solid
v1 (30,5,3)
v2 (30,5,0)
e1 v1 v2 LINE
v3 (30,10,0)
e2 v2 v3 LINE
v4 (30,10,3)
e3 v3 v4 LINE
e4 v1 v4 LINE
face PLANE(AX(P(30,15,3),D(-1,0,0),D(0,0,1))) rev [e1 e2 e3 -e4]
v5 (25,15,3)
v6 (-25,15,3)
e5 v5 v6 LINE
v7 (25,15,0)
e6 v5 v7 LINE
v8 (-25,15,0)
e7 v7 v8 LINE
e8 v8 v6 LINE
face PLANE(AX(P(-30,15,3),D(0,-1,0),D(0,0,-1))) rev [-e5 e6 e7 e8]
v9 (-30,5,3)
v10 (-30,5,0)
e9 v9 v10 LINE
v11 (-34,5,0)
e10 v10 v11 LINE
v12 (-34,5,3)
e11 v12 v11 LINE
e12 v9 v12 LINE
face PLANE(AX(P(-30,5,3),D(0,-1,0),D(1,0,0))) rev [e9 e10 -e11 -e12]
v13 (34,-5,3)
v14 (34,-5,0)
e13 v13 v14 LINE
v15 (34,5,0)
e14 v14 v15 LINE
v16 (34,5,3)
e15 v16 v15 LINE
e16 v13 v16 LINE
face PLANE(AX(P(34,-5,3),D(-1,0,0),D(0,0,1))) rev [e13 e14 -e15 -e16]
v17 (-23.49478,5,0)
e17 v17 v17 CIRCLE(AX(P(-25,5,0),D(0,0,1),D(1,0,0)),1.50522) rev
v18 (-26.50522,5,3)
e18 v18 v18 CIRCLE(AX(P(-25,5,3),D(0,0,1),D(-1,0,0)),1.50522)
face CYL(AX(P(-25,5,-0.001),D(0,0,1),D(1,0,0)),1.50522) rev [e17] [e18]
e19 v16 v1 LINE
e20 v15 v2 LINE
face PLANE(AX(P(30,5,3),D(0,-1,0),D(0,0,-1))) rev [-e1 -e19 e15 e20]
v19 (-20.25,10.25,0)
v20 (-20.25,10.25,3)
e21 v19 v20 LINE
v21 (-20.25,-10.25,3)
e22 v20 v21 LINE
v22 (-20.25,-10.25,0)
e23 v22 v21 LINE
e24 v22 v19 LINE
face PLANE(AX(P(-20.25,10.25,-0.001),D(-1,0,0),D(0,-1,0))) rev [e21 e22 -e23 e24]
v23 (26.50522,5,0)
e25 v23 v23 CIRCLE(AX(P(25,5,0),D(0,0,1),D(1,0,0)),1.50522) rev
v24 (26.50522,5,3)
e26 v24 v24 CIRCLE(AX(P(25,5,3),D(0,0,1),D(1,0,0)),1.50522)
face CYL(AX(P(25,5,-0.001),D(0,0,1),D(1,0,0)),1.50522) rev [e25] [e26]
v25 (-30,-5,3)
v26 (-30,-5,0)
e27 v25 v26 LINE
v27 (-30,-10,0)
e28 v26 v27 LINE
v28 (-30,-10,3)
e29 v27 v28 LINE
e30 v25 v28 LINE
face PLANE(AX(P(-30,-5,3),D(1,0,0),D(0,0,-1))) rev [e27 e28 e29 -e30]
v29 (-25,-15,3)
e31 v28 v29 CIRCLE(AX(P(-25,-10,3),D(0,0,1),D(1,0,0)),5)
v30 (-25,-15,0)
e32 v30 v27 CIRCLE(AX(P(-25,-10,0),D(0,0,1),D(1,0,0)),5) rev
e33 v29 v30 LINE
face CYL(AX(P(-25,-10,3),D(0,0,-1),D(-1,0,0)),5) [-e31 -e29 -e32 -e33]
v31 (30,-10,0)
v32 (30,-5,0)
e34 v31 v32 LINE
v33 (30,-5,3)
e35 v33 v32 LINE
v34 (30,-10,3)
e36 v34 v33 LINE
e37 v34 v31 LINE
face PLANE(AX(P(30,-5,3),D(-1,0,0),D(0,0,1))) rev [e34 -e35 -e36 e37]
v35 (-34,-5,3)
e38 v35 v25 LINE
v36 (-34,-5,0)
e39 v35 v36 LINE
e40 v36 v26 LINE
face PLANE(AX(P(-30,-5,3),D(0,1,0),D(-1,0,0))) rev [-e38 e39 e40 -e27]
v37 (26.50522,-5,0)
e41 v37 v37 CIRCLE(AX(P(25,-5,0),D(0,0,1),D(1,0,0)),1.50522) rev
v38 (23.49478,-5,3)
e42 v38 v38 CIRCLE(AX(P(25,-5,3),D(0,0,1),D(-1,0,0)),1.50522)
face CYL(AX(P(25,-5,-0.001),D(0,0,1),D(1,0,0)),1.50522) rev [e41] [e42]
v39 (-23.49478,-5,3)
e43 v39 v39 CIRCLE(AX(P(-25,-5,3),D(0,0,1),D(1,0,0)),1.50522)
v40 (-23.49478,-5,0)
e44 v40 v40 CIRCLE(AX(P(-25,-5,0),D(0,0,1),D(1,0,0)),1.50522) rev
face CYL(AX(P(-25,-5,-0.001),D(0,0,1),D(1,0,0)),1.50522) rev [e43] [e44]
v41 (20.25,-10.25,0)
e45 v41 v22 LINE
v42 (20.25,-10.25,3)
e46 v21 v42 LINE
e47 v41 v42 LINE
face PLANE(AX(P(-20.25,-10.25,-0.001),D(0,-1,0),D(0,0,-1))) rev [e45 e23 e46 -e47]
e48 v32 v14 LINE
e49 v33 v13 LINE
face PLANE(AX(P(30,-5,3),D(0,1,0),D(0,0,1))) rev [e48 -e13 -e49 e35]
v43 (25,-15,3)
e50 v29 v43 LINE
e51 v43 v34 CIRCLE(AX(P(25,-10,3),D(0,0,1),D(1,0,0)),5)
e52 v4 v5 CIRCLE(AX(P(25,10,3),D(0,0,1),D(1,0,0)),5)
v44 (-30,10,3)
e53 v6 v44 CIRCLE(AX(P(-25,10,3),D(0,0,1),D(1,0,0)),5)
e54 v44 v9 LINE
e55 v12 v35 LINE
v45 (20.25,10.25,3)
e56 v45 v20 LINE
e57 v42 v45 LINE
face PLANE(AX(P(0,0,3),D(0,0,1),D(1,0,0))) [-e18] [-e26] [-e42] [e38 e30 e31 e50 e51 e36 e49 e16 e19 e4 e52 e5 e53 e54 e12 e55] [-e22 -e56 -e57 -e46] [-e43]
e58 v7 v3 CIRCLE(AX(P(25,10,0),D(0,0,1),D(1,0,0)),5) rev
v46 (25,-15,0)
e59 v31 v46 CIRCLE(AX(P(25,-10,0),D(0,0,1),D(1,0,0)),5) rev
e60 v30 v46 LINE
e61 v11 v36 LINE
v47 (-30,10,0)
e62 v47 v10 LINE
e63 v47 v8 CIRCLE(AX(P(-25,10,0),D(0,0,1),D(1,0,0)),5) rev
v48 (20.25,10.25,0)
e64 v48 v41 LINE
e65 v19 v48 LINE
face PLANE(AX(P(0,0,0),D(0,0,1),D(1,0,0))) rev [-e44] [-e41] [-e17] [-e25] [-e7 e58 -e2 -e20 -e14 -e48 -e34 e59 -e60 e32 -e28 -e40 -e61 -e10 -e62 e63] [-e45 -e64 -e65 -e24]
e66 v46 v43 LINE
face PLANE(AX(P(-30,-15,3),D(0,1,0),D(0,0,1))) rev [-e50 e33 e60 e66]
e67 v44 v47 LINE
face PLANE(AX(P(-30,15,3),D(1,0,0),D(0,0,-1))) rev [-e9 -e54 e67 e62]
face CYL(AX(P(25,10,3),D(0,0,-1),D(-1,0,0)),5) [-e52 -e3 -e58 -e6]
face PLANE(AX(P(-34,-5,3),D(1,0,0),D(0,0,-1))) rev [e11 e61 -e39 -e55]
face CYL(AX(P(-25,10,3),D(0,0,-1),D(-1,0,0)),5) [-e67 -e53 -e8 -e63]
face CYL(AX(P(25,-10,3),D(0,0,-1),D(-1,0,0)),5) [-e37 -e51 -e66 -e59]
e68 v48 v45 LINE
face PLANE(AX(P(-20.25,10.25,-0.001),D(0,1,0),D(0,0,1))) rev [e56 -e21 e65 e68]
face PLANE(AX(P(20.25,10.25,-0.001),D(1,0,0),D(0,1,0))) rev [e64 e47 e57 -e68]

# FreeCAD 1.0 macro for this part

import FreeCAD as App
import Part
import Sketcher

V = App.Vector


def edges_at(feature, points):
    """Names of the edges that pass closest to the given points."""
    edges = feature.Shape.Edges
    near = lambda p: min(range(len(edges)), key=lambda i: edges[i].distToShape(Part.Vertex(*p))[0])
    return sorted({f"Edge{near(p) + 1}" for p in points})


def add_polygon(sketch, points):
    """Adds a closed chain of lines whose ends are joined by coincident constraints."""
    first, n = sketch.GeometryCount, len(points)
    for a, b in zip(points, points[1:] + points[:1]):
        sketch.addGeometry(Part.LineSegment(App.Vector(*a, 0), App.Vector(*b, 0)), False)
    for i in range(n):
        sketch.addConstraint(Sketcher.Constraint("Coincident", first + i, 2, first + (i + 1) % n, 1))

doc = App.newDocument("Part")
body = doc.addObject("PartDesign::Body", "Body")

sketch1 = body.newObject("Sketcher::SketchObject", "Sketch")
sketch1.AttachmentSupport = (doc.getObject("XY_Plane"), [""])
sketch1.MapMode = "FlatFace"
add_polygon(sketch1, [(-30, -5), (-30, -15), (30, -15), (30, -5), (34, -5), (34, 5), (30, 5), (30, 15), (-30, 15), (-30, 5), (-34, 5), (-34, -5)])
sketch1.addConstraint([
    Sketcher.Constraint("Vertical", 0),
    Sketcher.Constraint("Horizontal", 1),
    Sketcher.Constraint("Vertical", 2),
    Sketcher.Constraint("Horizontal", 3),
    Sketcher.Constraint("Vertical", 4),
    Sketcher.Constraint("Horizontal", 5),
    Sketcher.Constraint("Vertical", 6),
    Sketcher.Constraint("Horizontal", 7),
    Sketcher.Constraint("Vertical", 8),
    Sketcher.Constraint("Horizontal", 9),
    Sketcher.Constraint("Vertical", 10),
    Sketcher.Constraint("Horizontal", 11),
    Sketcher.Constraint("Symmetric", 0, 2, 6, 2, -1, 1),
    Sketcher.Constraint("Symmetric", 2, 2, 8, 2, -1, 1),
    Sketcher.Constraint("Symmetric", 4, 2, 10, 2, -1, 1),
    Sketcher.Constraint("Symmetric", 5, 2, 8, 2, -2),
    Sketcher.Constraint("Equal", 2, 4),
    Sketcher.Constraint("DistanceX", 1, 1, 1, 2, 60.0),
    Sketcher.Constraint("DistanceX", 3, 1, 3, 2, 4.0),
    Sketcher.Constraint("DistanceY", 0, 2, 0, 1, 10.0),
])
pad1 = body.newObject("PartDesign::Pad", "Pad")
pad1.Profile = sketch1
pad1.Length = 3

sketch2 = body.newObject("Sketcher::SketchObject", "Sketch001")
sketch2.AttachmentSupport = (doc.getObject("XY_Plane"), [""])
sketch2.MapMode = "FlatFace"
sketch2.AttachmentOffset = App.Placement(V(0, 0, 3), App.Rotation())
sketch2.addGeometry(Part.Circle(V(25, 5, 0), V(0, 0, 1), 1.50522), False)
sketch2.addConstraint([
    Sketcher.Constraint("DistanceX", -1, 1, 0, 3, 25.0),
    Sketcher.Constraint("DistanceY", -1, 1, 0, 3, 5.0),
    Sketcher.Constraint("Diameter", 0, 3.010439),
])
pocket1 = body.newObject("PartDesign::Pocket", "Pocket")
pocket1.Profile = sketch2
pocket1.Type = "UpToFirst"

sketch3 = body.newObject("Sketcher::SketchObject", "Sketch002")
sketch3.AttachmentSupport = (doc.getObject("XY_Plane"), [""])
sketch3.MapMode = "FlatFace"
sketch3.AttachmentOffset = App.Placement(V(0, 0, 3), App.Rotation())
sketch3.addGeometry(Part.Circle(V(-25, 5, 0), V(0, 0, 1), 1.50522), False)
sketch3.addConstraint([
    Sketcher.Constraint("DistanceX", 0, 3, -1, 1, 25.0),
    Sketcher.Constraint("DistanceY", -1, 1, 0, 3, 5.0),
    Sketcher.Constraint("Diameter", 0, 3.010439),
])
pocket2 = body.newObject("PartDesign::Pocket", "Pocket001")
pocket2.Profile = sketch3
pocket2.Type = "UpToFirst"

sketch4 = body.newObject("Sketcher::SketchObject", "Sketch003")
sketch4.AttachmentSupport = (doc.getObject("XY_Plane"), [""])
sketch4.MapMode = "FlatFace"
sketch4.AttachmentOffset = App.Placement(V(0, 0, 3), App.Rotation())
sketch4.addGeometry(Part.Circle(V(25, -5, 0), V(0, 0, 1), 1.50522), False)
sketch4.addConstraint([
    Sketcher.Constraint("DistanceX", -1, 1, 0, 3, 25.0),
    Sketcher.Constraint("DistanceY", 0, 3, -1, 1, 5.0),
    Sketcher.Constraint("Diameter", 0, 3.010439),
])
pocket3 = body.newObject("PartDesign::Pocket", "Pocket002")
pocket3.Profile = sketch4
pocket3.Type = "UpToFirst"

sketch5 = body.newObject("Sketcher::SketchObject", "Sketch004")
sketch5.AttachmentSupport = (doc.getObject("XY_Plane"), [""])
sketch5.MapMode = "FlatFace"
sketch5.AttachmentOffset = App.Placement(V(0, 0, 3), App.Rotation())
sketch5.addGeometry(Part.Circle(V(-25, -5, 0), V(0, 0, 1), 1.50522), False)
sketch5.addConstraint([
    Sketcher.Constraint("DistanceX", 0, 3, -1, 1, 25.0),
    Sketcher.Constraint("DistanceY", 0, 3, -1, 1, 5.0),
    Sketcher.Constraint("Diameter", 0, 3.010439),
])
pocket4 = body.newObject("PartDesign::Pocket", "Pocket003")
pocket4.Profile = sketch5
pocket4.Type = "UpToFirst"

sketch6 = body.newObject("Sketcher::SketchObject", "Sketch005")
sketch6.AttachmentSupport = (doc.getObject("XY_Plane"), [""])
sketch6.MapMode = "FlatFace"
sketch6.AttachmentOffset = App.Placement(V(0, 0, 3), App.Rotation())
add_polygon(sketch6, [(-20.25, 10.25), (-20.25, -10.25), (20.25, -10.25), (20.25, 10.25)])
sketch6.addConstraint([
    Sketcher.Constraint("Vertical", 0),
    Sketcher.Constraint("Horizontal", 1),
    Sketcher.Constraint("Vertical", 2),
    Sketcher.Constraint("Horizontal", 3),
    Sketcher.Constraint("Symmetric", 0, 2, 2, 2, -1, 1),
    Sketcher.Constraint("DistanceX", 1, 1, 1, 2, 40.5),
    Sketcher.Constraint("DistanceY", 0, 2, 0, 1, 20.5),
])
pocket5 = body.newObject("PartDesign::Pocket", "Pocket004")
pocket5.Profile = sketch6
pocket5.Type = "UpToFirst"
doc.recompute()

fillet = body.newObject("PartDesign::Fillet", "Fillet")
fillet.Base = (pocket5, edges_at(pocket5, [
    (30, -15, 1.5),
    (-30, -15, 1.5),
    (-30, 15, 1.5),
    (30, 15, 1.5),
]))
fillet.Radius = 5

doc.recompute()
